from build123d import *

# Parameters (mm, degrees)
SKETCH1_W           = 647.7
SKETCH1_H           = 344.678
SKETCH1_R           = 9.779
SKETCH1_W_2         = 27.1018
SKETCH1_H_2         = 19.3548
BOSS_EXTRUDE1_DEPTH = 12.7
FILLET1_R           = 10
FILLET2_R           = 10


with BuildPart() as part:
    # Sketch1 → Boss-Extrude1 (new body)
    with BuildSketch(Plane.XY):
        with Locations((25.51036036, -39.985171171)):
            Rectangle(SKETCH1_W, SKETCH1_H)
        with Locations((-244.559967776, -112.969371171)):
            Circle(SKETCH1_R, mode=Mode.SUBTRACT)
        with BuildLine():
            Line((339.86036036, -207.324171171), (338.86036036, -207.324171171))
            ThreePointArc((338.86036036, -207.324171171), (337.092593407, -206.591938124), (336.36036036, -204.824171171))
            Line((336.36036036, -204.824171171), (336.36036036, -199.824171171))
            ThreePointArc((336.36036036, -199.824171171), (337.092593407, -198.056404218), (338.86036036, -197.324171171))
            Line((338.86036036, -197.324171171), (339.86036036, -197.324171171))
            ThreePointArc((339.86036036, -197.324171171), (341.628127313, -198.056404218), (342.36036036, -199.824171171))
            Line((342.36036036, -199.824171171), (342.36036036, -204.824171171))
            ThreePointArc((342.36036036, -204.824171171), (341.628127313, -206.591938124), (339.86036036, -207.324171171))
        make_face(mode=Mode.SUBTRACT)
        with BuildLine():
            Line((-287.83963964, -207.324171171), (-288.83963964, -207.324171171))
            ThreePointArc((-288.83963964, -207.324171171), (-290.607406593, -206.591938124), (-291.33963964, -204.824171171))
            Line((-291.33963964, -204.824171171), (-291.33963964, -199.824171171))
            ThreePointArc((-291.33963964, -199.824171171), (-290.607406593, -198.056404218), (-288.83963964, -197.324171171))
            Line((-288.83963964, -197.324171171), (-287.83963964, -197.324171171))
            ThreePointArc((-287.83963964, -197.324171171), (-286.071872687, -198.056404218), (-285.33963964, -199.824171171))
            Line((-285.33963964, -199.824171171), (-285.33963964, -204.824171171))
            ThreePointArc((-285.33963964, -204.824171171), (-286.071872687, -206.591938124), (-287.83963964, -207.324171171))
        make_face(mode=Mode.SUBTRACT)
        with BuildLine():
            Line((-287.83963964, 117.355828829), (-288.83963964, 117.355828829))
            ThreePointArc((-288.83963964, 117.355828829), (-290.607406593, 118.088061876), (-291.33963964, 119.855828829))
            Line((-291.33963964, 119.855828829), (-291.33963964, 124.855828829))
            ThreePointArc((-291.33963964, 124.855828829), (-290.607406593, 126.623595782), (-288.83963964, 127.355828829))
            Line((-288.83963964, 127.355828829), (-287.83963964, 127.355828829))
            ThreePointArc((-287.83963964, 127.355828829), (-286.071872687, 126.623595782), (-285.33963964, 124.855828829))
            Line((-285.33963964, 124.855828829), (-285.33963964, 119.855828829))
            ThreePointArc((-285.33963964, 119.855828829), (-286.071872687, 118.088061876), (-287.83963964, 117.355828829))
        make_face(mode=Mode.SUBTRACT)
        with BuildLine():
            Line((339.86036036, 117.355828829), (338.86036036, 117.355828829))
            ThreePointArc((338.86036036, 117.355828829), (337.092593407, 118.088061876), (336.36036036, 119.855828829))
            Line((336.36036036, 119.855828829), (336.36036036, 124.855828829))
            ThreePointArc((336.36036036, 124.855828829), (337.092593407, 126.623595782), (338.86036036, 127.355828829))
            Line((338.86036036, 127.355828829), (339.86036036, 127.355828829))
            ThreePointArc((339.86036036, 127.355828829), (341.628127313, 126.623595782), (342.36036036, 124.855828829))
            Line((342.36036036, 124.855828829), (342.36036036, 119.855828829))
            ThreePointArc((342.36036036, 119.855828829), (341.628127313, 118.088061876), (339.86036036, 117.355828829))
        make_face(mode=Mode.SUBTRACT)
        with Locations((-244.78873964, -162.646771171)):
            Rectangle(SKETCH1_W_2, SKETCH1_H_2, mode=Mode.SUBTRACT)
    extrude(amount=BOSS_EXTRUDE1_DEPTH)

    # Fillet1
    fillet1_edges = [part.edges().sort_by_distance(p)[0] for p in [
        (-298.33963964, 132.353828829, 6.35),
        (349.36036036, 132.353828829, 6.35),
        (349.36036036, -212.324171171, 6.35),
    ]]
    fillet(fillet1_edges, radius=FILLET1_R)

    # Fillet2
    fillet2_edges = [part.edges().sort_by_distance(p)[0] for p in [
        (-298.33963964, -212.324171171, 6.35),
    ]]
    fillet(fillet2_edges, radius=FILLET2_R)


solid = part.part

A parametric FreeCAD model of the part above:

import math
import FreeCAD as App
import Part
import Sketcher
from FreeCAD import Vector
Q = App.Units.Quantity


def edges_at(feature, points):
    """Names of the edges that pass closest to the given points."""
    edges = feature.Shape.Edges
    near = lambda p: min(range(len(edges)), key=lambda i: edges[i].distToShape(Part.Vertex(*p))[0])
    return sorted({f"Edge{near(p) + 1}" for p in points})

doc = App.newDocument("Part")
body = doc.addObject("PartDesign::Body", "Body")

# Sketch on XY plane
sketch1 = body.newObject("Sketcher::SketchObject", "Sketch")
sketch1.AttachmentSupport = (doc.getObject("XY_Plane"), [""])
sketch1.MapMode = "FlatFace"
sketch1.addGeometry([
    Part.LineSegment(Vector(-298.3, 132.4, 0), Vector(-298.3, -212.3, 0)),  # 0
    Part.LineSegment(Vector(-298.3, -212.3, 0), Vector(349.4, -212.3, 0)),  # 1
    Part.LineSegment(Vector(349.4, -212.3, 0), Vector(349.4, 132.4, 0)),  # 2
    Part.LineSegment(Vector(349.4, 132.4, 0), Vector(-298.3, 132.4, 0)),  # 3
    Part.ArcOfCircle(Part.Circle(Vector(-287.8, -204.8, 0), Vector(0, 0, 1), 2.5), math.radians(-90), math.radians(0)),  # 4
    Part.LineSegment(Vector(-287.8, -207.3, 0), Vector(-288.8, -207.3, 0)),  # 5
    Part.ArcOfCircle(Part.Circle(Vector(-288.8, -204.8, 0), Vector(0, 0, 1), 2.5), math.radians(180), math.radians(270)),  # 6
    Part.LineSegment(Vector(-291.3, -204.8, 0), Vector(-291.3, -199.8, 0)),  # 7
    Part.ArcOfCircle(Part.Circle(Vector(-288.8, -199.8, 0), Vector(0, 0, 1), 2.5), math.radians(90), math.radians(180)),  # 8
    Part.LineSegment(Vector(-288.8, -197.3, 0), Vector(-287.8, -197.3, 0)),  # 9
    Part.ArcOfCircle(Part.Circle(Vector(-287.8, -199.8, 0), Vector(0, 0, 1), 2.5), math.radians(0), math.radians(90)),  # 10
    Part.LineSegment(Vector(-285.3, -199.8, 0), Vector(-285.3, -204.8, 0)),  # 11
    Part.LineSegment(Vector(-231.2, -172.3, 0), Vector(-258.3, -172.3, 0)),  # 12
    Part.LineSegment(Vector(-258.3, -172.3, 0), Vector(-258.3, -153, 0)),  # 13
    Part.LineSegment(Vector(-258.3, -153, 0), Vector(-231.2, -153, 0)),  # 14
    Part.LineSegment(Vector(-231.2, -153, 0), Vector(-231.2, -172.3, 0)),  # 15
    Part.Circle(Vector(-244.6, -113, 0), Vector(0, 0, 1), 9.8),  # 16
    Part.ArcOfCircle(Part.Circle(Vector(339.9, -204.8, 0), Vector(0, 0, 1), 2.5), math.radians(-90), math.radians(0)),  # 17
    Part.LineSegment(Vector(339.9, -207.3, 0), Vector(338.9, -207.3, 0)),  # 18
    Part.ArcOfCircle(Part.Circle(Vector(338.9, -204.8, 0), Vector(0, 0, 1), 2.5), math.radians(180), math.radians(270)),  # 19
    Part.LineSegment(Vector(336.4, -204.8, 0), Vector(336.4, -199.8, 0)),  # 20
    Part.ArcOfCircle(Part.Circle(Vector(338.9, -199.8, 0), Vector(0, 0, 1), 2.5), math.radians(90), math.radians(180)),  # 21
    Part.LineSegment(Vector(338.9, -197.3, 0), Vector(339.9, -197.3, 0)),  # 22
    Part.ArcOfCircle(Part.Circle(Vector(339.9, -199.8, 0), Vector(0, 0, 1), 2.5), math.radians(0), math.radians(90)),  # 23
    Part.LineSegment(Vector(342.4, -199.8, 0), Vector(342.4, -204.8, 0)),  # 24
    Part.ArcOfCircle(Part.Circle(Vector(-287.8, 119.9, 0), Vector(0, 0, 1), 2.5), math.radians(-90), math.radians(0)),  # 25
    Part.LineSegment(Vector(-287.8, 117.4, 0), Vector(-288.8, 117.4, 0)),  # 26
    Part.ArcOfCircle(Part.Circle(Vector(-288.8, 119.9, 0), Vector(0, 0, 1), 2.5), math.radians(180), math.radians(270)),  # 27
    Part.LineSegment(Vector(-291.3, 119.9, 0), Vector(-291.3, 124.9, 0)),  # 28
    Part.ArcOfCircle(Part.Circle(Vector(-288.8, 124.9, 0), Vector(0, 0, 1), 2.5), math.radians(90), math.radians(180)),  # 29
    Part.LineSegment(Vector(-288.8, 127.4, 0), Vector(-287.8, 127.4, 0)),  # 30
    Part.ArcOfCircle(Part.Circle(Vector(-287.8, 124.9, 0), Vector(0, 0, 1), 2.5), math.radians(0), math.radians(90)),  # 31
    Part.LineSegment(Vector(-285.3, 124.9, 0), Vector(-285.3, 119.9, 0)),  # 32
    Part.ArcOfCircle(Part.Circle(Vector(339.9, 119.9, 0), Vector(0, 0, 1), 2.5), math.radians(-90), math.radians(0)),  # 33
    Part.LineSegment(Vector(339.9, 117.4, 0), Vector(338.9, 117.4, 0)),  # 34
    Part.ArcOfCircle(Part.Circle(Vector(338.9, 119.9, 0), Vector(0, 0, 1), 2.5), math.radians(180), math.radians(270)),  # 35
    Part.LineSegment(Vector(336.4, 119.9, 0), Vector(336.4, 124.9, 0)),  # 36
    Part.ArcOfCircle(Part.Circle(Vector(338.9, 124.9, 0), Vector(0, 0, 1), 2.5), math.radians(90), math.radians(180)),  # 37
    Part.LineSegment(Vector(338.9, 127.4, 0), Vector(339.9, 127.4, 0)),  # 38
    Part.ArcOfCircle(Part.Circle(Vector(339.9, 124.9, 0), Vector(0, 0, 1), 2.5), math.radians(0), math.radians(90)),  # 39
    Part.LineSegment(Vector(342.4, 124.9, 0), Vector(342.4, 119.9, 0)),  # 40
], False)
sketch1.addConstraint([
    Sketcher.Constraint("Coincident", 0, 2, 1, 1),
    Sketcher.Constraint("Coincident", 1, 2, 2, 1),
    Sketcher.Constraint("Coincident", 2, 2, 3, 1),
    Sketcher.Constraint("Coincident", 3, 2, 0, 1),
    Sketcher.Constraint("Tangent", 4, 1, 5, 1),
    Sketcher.Constraint("Tangent", 5, 2, 6, 2),
    Sketcher.Constraint("Tangent", 6, 1, 7, 1),
    Sketcher.Constraint("Tangent", 7, 2, 8, 2),
    Sketcher.Constraint("Tangent", 8, 1, 9, 1),
    Sketcher.Constraint("Tangent", 9, 2, 10, 2),
    Sketcher.Constraint("Tangent", 10, 1, 11, 1),
    Sketcher.Constraint("Tangent", 11, 2, 4, 2),
    Sketcher.Constraint("Coincident", 12, 2, 13, 1),
    Sketcher.Constraint("Coincident", 13, 2, 14, 1),
    Sketcher.Constraint("Coincident", 14, 2, 15, 1),
    Sketcher.Constraint("Coincident", 15, 2, 12, 1),
    Sketcher.Constraint("Tangent", 17, 1, 18, 1),
    Sketcher.Constraint("Tangent", 18, 2, 19, 2),
    Sketcher.Constraint("Tangent", 19, 1, 20, 1),
    Sketcher.Constraint("Tangent", 20, 2, 21, 2),
    Sketcher.Constraint("Tangent", 21, 1, 22, 1),
    Sketcher.Constraint("Tangent", 22, 2, 23, 2),
    Sketcher.Constraint("Tangent", 23, 1, 24, 1),
    Sketcher.Constraint("Tangent", 24, 2, 17, 2),
    Sketcher.Constraint("Tangent", 25, 1, 26, 1),
    Sketcher.Constraint("Tangent", 26, 2, 27, 2),
    Sketcher.Constraint("Tangent", 27, 1, 28, 1),
    Sketcher.Constraint("Tangent", 28, 2, 29, 2),
    Sketcher.Constraint("Tangent", 29, 1, 30, 1),
    Sketcher.Constraint("Tangent", 30, 2, 31, 2),
    Sketcher.Constraint("Tangent", 31, 1, 32, 1),
    Sketcher.Constraint("Tangent", 32, 2, 25, 2),
    Sketcher.Constraint("Tangent", 33, 1, 34, 1),
    Sketcher.Constraint("Tangent", 34, 2, 35, 2),
    Sketcher.Constraint("Tangent", 35, 1, 36, 1),
    Sketcher.Constraint("Tangent", 36, 2, 37, 2),
    Sketcher.Constraint("Tangent", 37, 1, 38, 1),
    Sketcher.Constraint("Tangent", 38, 2, 39, 2),
    Sketcher.Constraint("Tangent", 39, 1, 40, 1),
    Sketcher.Constraint("Tangent", 40, 2, 33, 2),
    Sketcher.Constraint("Vertical", 0),
    Sketcher.Constraint("Horizontal", 1),
    Sketcher.Constraint("Vertical", 2),
    Sketcher.Constraint("Horizontal", 3),
    Sketcher.Constraint("Horizontal", 5),
    Sketcher.Constraint("Vertical", 7),
    Sketcher.Constraint("Horizontal", 9),
    Sketcher.Constraint("Vertical", 11),
    Sketcher.Constraint("Horizontal", 12),
    Sketcher.Constraint("Vertical", 13),
    Sketcher.Constraint("Horizontal", 14),
    Sketcher.Constraint("Vertical", 15),
    Sketcher.Constraint("Horizontal", 18),
    Sketcher.Constraint("Vertical", 20),
    Sketcher.Constraint("Horizontal", 22),
    Sketcher.Constraint("Vertical", 24),
    Sketcher.Constraint("Horizontal", 26),
    Sketcher.Constraint("Vertical", 28),
    Sketcher.Constraint("Horizontal", 30),
    Sketcher.Constraint("Vertical", 32),
    Sketcher.Constraint("Horizontal", 34),
    Sketcher.Constraint("Vertical", 36),
    Sketcher.Constraint("Horizontal", 38),
    Sketcher.Constraint("Vertical", 40),
    Sketcher.Constraint("Equal", 4, 6),
    Sketcher.Constraint("Equal", 6, 8),
    Sketcher.Constraint("Equal", 8, 10),
    Sketcher.Constraint("Equal", 10, 17),
    Sketcher.Constraint("Equal", 17, 19),
    Sketcher.Constraint("Equal", 19, 21),
    Sketcher.Constraint("Equal", 21, 23),
    Sketcher.Constraint("Equal", 23, 25),
    Sketcher.Constraint("Equal", 25, 27),
    Sketcher.Constraint("Equal", 27, 29),
    Sketcher.Constraint("Equal", 29, 31),
    Sketcher.Constraint("Equal", 31, 33),
    Sketcher.Constraint("Equal", 33, 35),
    Sketcher.Constraint("Equal", 35, 37),
    Sketcher.Constraint("Equal", 37, 39),
    Sketcher.Constraint("Horizontal", 6, 3, 17, 3),
    Sketcher.Constraint("Horizontal", 10, 3, 21, 3),
    Sketcher.Constraint("Horizontal", 27, 3, 33, 3),
    Sketcher.Constraint("Horizontal", 31, 3, 37, 3),
    Sketcher.Constraint("Vertical", 10, 3, 25, 3),
    Sketcher.Constraint("Vertical", 8, 3, 27, 3),
    Sketcher.Constraint("Vertical", 23, 3, 33, 3),
    Sketcher.Constraint("Vertical", 21, 3, 35, 3),
    Sketcher.Constraint("Equal", 9, 18),
    Sketcher.Constraint("Equal", 24, 28),
    Sketcher.Constraint("Diameter", 16, Q("0.77 in")),
    Sketcher.Constraint("DistanceX", 1, 1, 1, 2, Q("25.5 in")),
    Sketcher.Constraint("DistanceY", 0, 2, 0, 1, Q("13.57 in")),
    Sketcher.Constraint("DistanceX", 12, 2, 12, 1, Q("1.067 in")),
    Sketcher.Constraint("DistanceY", 13, 1, 13, 2, Q("0.762 in")),
    Sketcher.Constraint("Radius", 4, 2.5),
    Sketcher.Constraint("DistanceX", 5, 2, 5, 1, 1.0),
    Sketcher.Constraint("DistanceY", 7, 1, 7, 2, 5.0),
    Sketcher.Constraint("DistanceY", 10, 3, 16, 3, 86.8548),
    Sketcher.Constraint("DistanceX", 4, 3, 17, 3, 627.7),
    Sketcher.Constraint("DistanceY", 16, 3, 25, 3, 232.8252),
    Sketcher.Constraint("DistanceX", 0, 2, 6, 3, 9.5),
    Sketcher.Constraint("DistanceY", 0, 2, 6, 3, 7.5),
    Sketcher.Constraint("DistanceX", 10, 1, 12, 2, 27.0),
    Sketcher.Constraint("DistanceY", 10, 1, 12, 2, 27.5),
    Sketcher.Constraint("DistanceX", 4, 3, -1, 1, 287.83964),
    Sketcher.Constraint("DistanceY", 4, 3, -1, 1, 204.824171),
    Sketcher.Constraint("DistanceX", 10, 3, 16, 3, 43.279672),
])
pad1 = body.newObject("PartDesign::Pad", "Pad")
pad1.Profile = sketch1
pad1.Length = Q("0.5 in")
doc.recompute()

fillet = body.newObject("PartDesign::Fillet", "Fillet")
fillet.Base = (pad1, edges_at(pad1, [(-298.34, 132.354, 6.35), (349.36, 132.354, 6.35), (349.36, -212.324, 6.35)]))
fillet.Radius = 10
doc.recompute()

fillet2 = body.newObject("PartDesign::Fillet", "Fillet001")
fillet2.Base = (fillet, edges_at(fillet, [(-298.34, -212.324, 6.35)]))
fillet2.Radius = 10

doc.recompute()
